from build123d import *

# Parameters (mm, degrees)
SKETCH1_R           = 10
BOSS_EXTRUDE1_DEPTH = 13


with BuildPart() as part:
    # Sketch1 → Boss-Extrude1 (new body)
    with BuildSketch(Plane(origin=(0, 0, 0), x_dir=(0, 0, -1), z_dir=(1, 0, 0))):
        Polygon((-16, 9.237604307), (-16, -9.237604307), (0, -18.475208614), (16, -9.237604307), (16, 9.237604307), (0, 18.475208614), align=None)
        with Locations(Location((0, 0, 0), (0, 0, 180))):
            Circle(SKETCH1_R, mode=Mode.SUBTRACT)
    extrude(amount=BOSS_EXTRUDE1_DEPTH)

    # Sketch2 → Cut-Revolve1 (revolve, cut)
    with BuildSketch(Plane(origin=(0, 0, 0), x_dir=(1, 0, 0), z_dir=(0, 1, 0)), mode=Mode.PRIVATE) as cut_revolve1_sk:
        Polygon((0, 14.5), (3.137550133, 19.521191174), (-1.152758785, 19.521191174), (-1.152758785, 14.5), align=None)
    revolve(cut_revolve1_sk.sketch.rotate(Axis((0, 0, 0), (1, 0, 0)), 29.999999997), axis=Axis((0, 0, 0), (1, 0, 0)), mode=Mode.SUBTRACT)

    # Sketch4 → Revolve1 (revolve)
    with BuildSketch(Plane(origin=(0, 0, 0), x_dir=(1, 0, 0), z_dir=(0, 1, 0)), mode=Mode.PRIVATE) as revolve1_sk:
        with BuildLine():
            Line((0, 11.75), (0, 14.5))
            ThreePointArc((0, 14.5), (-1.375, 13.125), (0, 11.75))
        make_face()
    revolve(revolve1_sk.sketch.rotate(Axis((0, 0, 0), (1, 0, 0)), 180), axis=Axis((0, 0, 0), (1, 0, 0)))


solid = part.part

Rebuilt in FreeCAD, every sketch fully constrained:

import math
import FreeCAD as App
import Part
import Sketcher

V = App.Vector
Q = App.Units.Quantity

doc = App.newDocument("Part")
body = doc.addObject("PartDesign::Body", "Body")

# Sketch on YZ plane
sketch1 = body.newObject("Sketcher::SketchObject", "Sketch")
sketch1.AttachmentSupport = (doc.getObject("YZ_Plane"), [""])
sketch1.MapMode = "FlatFace"
sketch1.addGeometry([
    Part.LineSegment(V(9.237604, 16, 0), V(-9.237604, 16, 0)),  # 0
    Part.LineSegment(V(-9.237604, 16, 0), V(-18.475209, 0, 0)),  # 1
    Part.LineSegment(V(-18.475209, 0, 0), V(-9.237604, -16, 0)),  # 2
    Part.LineSegment(V(-9.237604, -16, 0), V(9.237604, -16, 0)),  # 3
    Part.LineSegment(V(9.237604, -16, 0), V(18.475209, 0, 0)),  # 4
    Part.LineSegment(V(18.475209, 0, 0), V(9.237604, 16, 0)),  # 5
    Part.Circle(V(0, 0, 0), V(0, 0, 1), 10),  # 6
], False)
sketch1.addConstraint([
    Sketcher.Constraint("Coincident", 0, 2, 1, 1),
    Sketcher.Constraint("Coincident", 1, 2, 2, 1),
    Sketcher.Constraint("Coincident", 2, 2, 3, 1),
    Sketcher.Constraint("Coincident", 3, 2, 4, 1),
    Sketcher.Constraint("Coincident", 4, 2, 5, 1),
    Sketcher.Constraint("Coincident", 5, 2, 0, 1),
    Sketcher.Constraint("Horizontal", 0),
    Sketcher.Constraint("Horizontal", 3),
    Sketcher.Constraint("Coincident", 6, 3, -1, 1),
    Sketcher.Constraint("Symmetric", 0, 2, 3, 2, -1, 1),
    Sketcher.Constraint("Symmetric", 1, 2, 4, 2, -1, 1),
    Sketcher.Constraint("PointOnObject", 1, 2, -1),
    Sketcher.Constraint("Parallel", 2, 5),
    Sketcher.Constraint("Vertical", 0, 2, 2, 2),
    Sketcher.Constraint("Diameter", 6, 20.0),
    Sketcher.Constraint("Angle", 1, Q("-120 deg")),
    Sketcher.Constraint("DistanceY", -1, 1, 0, 2, 16.0),
    Sketcher.Constraint("DistanceX", 0, 2, 0, 1, 18.475209),
])
pad1 = body.newObject("PartDesign::Pad", "Pad")
pad1.Profile = sketch1
pad1.Length = 13

# Sketch on XZ plane
sketch2 = body.newObject("Sketcher::SketchObject", "Sketch001")
sketch2.AttachmentSupport = (doc.getObject("XZ_Plane"), [""])
sketch2.MapMode = "FlatFace"
sketch2.addGeometry([
    Part.LineSegment(V(0, -14.5, 0), V(3.13755, -19.521191, 0)),
    Part.LineSegment(V(3.13755, -19.521191, 0), V(-1.152759, -19.521191, 0)),
    Part.LineSegment(V(-1.152759, -19.521191, 0), V(-1.152759, -14.5, 0)),
    Part.LineSegment(V(-1.152759, -14.5, 0), V(0, -14.5, 0)),
], False)
sketch2.addConstraint([
    Sketcher.Constraint("Coincident", 0, 2, 1, 1),
    Sketcher.Constraint("Coincident", 1, 2, 2, 1),
    Sketcher.Constraint("Coincident", 2, 2, 3, 1),
    Sketcher.Constraint("Coincident", 3, 2, 0, 1),
    Sketcher.Constraint("Horizontal", 1),
    Sketcher.Constraint("Vertical", 2),
    Sketcher.Constraint("Horizontal", 3),
    Sketcher.Constraint("PointOnObject", 3, 2, -2),
    Sketcher.Constraint("DistanceY", 2, 2, -1, 1, 14.5),
    Sketcher.Constraint("DistanceX", 1, 2, 1, 1, 4.290309),
    Sketcher.Constraint("DistanceX", 3, 1, 3, 2, 1.152759),
    Sketcher.Constraint("DistanceY", 2, 1, 2, 2, 5.021191),
])
groove = body.newObject("PartDesign::Groove", "Groove")
groove.Profile = sketch2
groove.ReferenceAxis = (sketch2, ["H_Axis"])
groove.Angle = 360

# Sketch on XZ plane
sketch3 = body.newObject("Sketcher::SketchObject", "Sketch002")
sketch3.AttachmentSupport = (doc.getObject("XZ_Plane"), [""])
sketch3.MapMode = "FlatFace"
sketch3.addGeometry([
    Part.LineSegment(V(0, -11.75, 0), V(0, -14.5, 0)),
    Part.ArcOfCircle(Part.Circle(V(0, -13.125, 0), V(0, 0, 1), 1.375), math.radians(90), math.radians(270)),
], False)
sketch3.addConstraint([
    Sketcher.Constraint("Coincident", 0, 1, 1, 1),
    Sketcher.Constraint("Coincident", 1, 2, 0, 2),
    Sketcher.Constraint("Vertical", 0),
    Sketcher.Constraint("PointOnObject", 1, 3, -2),
    Sketcher.Constraint("PointOnObject", 0, 1, -2),
    Sketcher.Constraint("Radius", 1, 1.375),
    Sketcher.Constraint("DistanceY", 1, 2, -1, 1, 14.5),
])
revolution = body.newObject("PartDesign::Revolution", "Revolution")
revolution.Profile = sketch3
revolution.ReferenceAxis = (sketch3, ["H_Axis"])
revolution.Angle = 360

doc.recompute()
